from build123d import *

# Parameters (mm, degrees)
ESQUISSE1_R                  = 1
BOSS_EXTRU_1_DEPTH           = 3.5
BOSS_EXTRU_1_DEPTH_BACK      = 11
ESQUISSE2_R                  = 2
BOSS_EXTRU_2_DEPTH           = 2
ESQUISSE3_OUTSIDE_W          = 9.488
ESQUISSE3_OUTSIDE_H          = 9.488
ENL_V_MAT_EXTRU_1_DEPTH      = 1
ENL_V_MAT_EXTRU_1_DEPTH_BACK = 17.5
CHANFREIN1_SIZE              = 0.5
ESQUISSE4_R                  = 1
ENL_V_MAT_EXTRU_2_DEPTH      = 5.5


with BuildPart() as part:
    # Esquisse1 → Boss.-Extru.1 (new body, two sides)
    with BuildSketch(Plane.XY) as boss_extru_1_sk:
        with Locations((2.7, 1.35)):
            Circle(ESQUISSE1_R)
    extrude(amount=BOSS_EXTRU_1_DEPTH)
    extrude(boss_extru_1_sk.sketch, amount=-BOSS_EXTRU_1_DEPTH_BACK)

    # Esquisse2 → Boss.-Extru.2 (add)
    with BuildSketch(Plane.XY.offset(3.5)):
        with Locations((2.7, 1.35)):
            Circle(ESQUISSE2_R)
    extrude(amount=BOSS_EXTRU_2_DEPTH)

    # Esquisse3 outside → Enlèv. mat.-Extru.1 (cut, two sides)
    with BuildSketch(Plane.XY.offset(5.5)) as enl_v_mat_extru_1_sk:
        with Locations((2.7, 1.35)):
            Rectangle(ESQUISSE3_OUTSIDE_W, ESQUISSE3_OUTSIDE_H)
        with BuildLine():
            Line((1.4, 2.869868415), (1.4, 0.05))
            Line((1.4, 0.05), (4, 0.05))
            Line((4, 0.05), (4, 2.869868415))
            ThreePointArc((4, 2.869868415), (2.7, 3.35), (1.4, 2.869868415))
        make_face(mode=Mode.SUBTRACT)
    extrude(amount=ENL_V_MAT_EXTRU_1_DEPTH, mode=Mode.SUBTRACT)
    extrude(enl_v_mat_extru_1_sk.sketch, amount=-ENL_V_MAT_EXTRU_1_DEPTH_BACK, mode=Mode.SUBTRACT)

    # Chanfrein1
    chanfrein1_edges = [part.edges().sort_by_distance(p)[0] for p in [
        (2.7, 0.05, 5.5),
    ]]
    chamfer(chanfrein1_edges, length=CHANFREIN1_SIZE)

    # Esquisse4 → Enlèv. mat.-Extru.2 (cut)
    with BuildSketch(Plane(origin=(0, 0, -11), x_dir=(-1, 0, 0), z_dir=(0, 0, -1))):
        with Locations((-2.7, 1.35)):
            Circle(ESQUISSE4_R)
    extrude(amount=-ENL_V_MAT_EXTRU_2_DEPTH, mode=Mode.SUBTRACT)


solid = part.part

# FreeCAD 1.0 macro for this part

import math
import FreeCAD as App
import Part
import Sketcher
from FreeCAD import Vector


def edges_at(feature, points):
    """Names of the edges that pass closest to the given points."""
    edges = feature.Shape.Edges
    near = lambda p: min(range(len(edges)), key=lambda i: edges[i].distToShape(Part.Vertex(*p))[0])
    return sorted({f"Edge{near(p) + 1}" for p in points})


def add_polygon(sketch, points):
    """Adds a closed chain of lines whose ends are joined by coincident constraints."""
    first, n = sketch.GeometryCount, len(points)
    for a, b in zip(points, points[1:] + points[:1]):
        sketch.addGeometry(Part.LineSegment(App.Vector(*a, 0), App.Vector(*b, 0)), False)
    for i in range(n):
        sketch.addConstraint(Sketcher.Constraint("Coincident", first + i, 2, first + (i + 1) % n, 1))

doc = App.newDocument("Part")
params = doc.addObject("Spreadsheet::Sheet", "Params")
for row, (alias, value) in enumerate([
    ("sketch1_diameter", "2 mm"),
    ("pad1_length", "3.5 mm"),
    ("pad1_length2", "11 mm"),
    ("sketch2_diameter", "4 mm"),
    ("pad2_length", "2 mm"),
    ("sketch3_radius", "2 mm"),
    ("sketch3_width", "2.6 mm"),
    ("chamfer_size", "0.5 mm"),
    ("sketch4_diameter", "2 mm"),
    ("pocket2_length", "5.5 mm"),
], start=1):
    params.set(f"A{row}", alias)
    params.set(f"B{row}", "=" + value)
    params.setAlias(f"B{row}", alias)

body = doc.addObject("PartDesign::Body", "Body")

# Sketch on XY plane
sketch1 = doc.addObject("Sketcher::SketchObject", "Sketch")
body.addObject(sketch1)
sketch1.AttachmentSupport = (doc.XY_Plane, [""])
sketch1.MapMode = "FlatFace"
sketch1.addGeometry(Part.Circle(Vector(2.7, 1.4, 0), Vector(0, 0, 1), 1), False)
sketch1.addConstraint([
    Sketcher.Constraint("Diameter", 0, 2.0),
    Sketcher.Constraint("DistanceX", -1, 1, 0, 3, 2.7),
    Sketcher.Constraint("DistanceY", -1, 1, 0, 3, 1.35),
])
sketch1.setExpression("Constraints[0]", "Params.sketch1_diameter")
pad1 = doc.addObject("PartDesign::Pad", "Pad")
body.addObject(pad1)
pad1.Profile = sketch1
pad1.Type = "TwoLengths"
pad1.setExpression("Length", "Params.pad1_length")
pad1.setExpression("Length2", "Params.pad1_length2")

# Sketch on XY plane
sketch2 = doc.addObject("Sketcher::SketchObject", "Sketch001")
body.addObject(sketch2)
sketch2.AttachmentSupport = (doc.XY_Plane, [""])
sketch2.MapMode = "FlatFace"
sketch2.AttachmentOffset = App.Placement(Vector(0, 0, 3.5), App.Rotation())
sketch2.addGeometry(Part.Circle(Vector(2.7, 1.4, 0), Vector(0, 0, 1), 2), False)
sketch2.addConstraint([
    Sketcher.Constraint("Diameter", 0, 4.0),
    Sketcher.Constraint("DistanceX", -1, 1, 0, 3, 2.7),
    Sketcher.Constraint("DistanceY", -1, 1, 0, 3, 1.35),
])
sketch2.setExpression("Constraints[0]", "Params.sketch2_diameter")
pad2 = doc.addObject("PartDesign::Pad", "Pad001")
body.addObject(pad2)
pad2.Profile = sketch2
pad2.setExpression("Length", "Params.pad2_length")

# Sketch on XY plane
sketch3 = doc.addObject("Sketcher::SketchObject", "Sketch002")
body.addObject(sketch3)
sketch3.AttachmentSupport = (doc.XY_Plane, [""])
sketch3.MapMode = "FlatFace"
sketch3.AttachmentOffset = App.Placement(Vector(0, 0, 5.5), App.Rotation())
add_polygon(sketch3, [(-2, 6.1), (-2, -3.4), (7.4, -3.4), (7.4, 6.1)])  # lines 0-3
sketch3.addGeometry(Part.LineSegment(Vector(1.4, 0.1, 0), Vector(1.4, 2.9, 0)), False)  # 4
sketch3.addGeometry(Part.ArcOfCircle(Part.Circle(Vector(2.7, 1.4, 0), Vector(0, 0, 1), 2), math.radians(49), math.radians(131)), False)  # 5
sketch3.addGeometry(Part.LineSegment(Vector(4, 2.9, 0), Vector(4, 0.1, 0)), False)  # 6
sketch3.addGeometry(Part.LineSegment(Vector(4, 0.1, 0), Vector(1.4, 0.1, 0)), False)  # 7
sketch3.addConstraint([
    Sketcher.Constraint("Coincident", 4, 2, 5, 2),
    Sketcher.Constraint("Coincident", 5, 1, 6, 1),
    Sketcher.Constraint("Coincident", 6, 2, 7, 1),
    Sketcher.Constraint("Coincident", 7, 2, 4, 1),
    Sketcher.Constraint("Vertical", 0),
    Sketcher.Constraint("Horizontal", 1),
    Sketcher.Constraint("Vertical", 2),
    Sketcher.Constraint("Horizontal", 3),
    Sketcher.Constraint("Vertical", 4),
    Sketcher.Constraint("Vertical", 6),
    Sketcher.Constraint("Horizontal", 7),
    Sketcher.Constraint("Horizontal", 4, 2, 5, 1),
    Sketcher.Constraint("Equal", 3, 0),
    Sketcher.Constraint("Radius", 5, 2.0),
    Sketcher.Constraint("DistanceX", 7, 2, 7, 1, 2.6),
    Sketcher.Constraint("DistanceX", -1, 1, 5, 1, 4.0),
    Sketcher.Constraint("DistanceY", 6, 2, 5, 3, 1.3),
    Sketcher.Constraint("DistanceX", 1, 1, 1, 2, 9.488),
    Sketcher.Constraint("DistanceY", -1, 1, 5, 3, 1.35),
    Sketcher.Constraint("DistanceX", 0, 2, -1, 1, 2.044),
    Sketcher.Constraint("DistanceY", 0, 2, -1, 1, 3.394),
])
sketch3.setExpression("Constraints[17]", "Params.sketch3_radius")
sketch3.setExpression("Constraints[18]", "Params.sketch3_width")
pocket1 = doc.addObject("PartDesign::Pocket", "Pocket")
body.addObject(pocket1)
pocket1.Profile = sketch3
pocket1.Type = "ThroughAll"
pocket1.Midplane = True
doc.recompute()

chamfer = doc.addObject("PartDesign::Chamfer", "Chamfer")
body.addObject(chamfer)
chamfer.Base = (pocket1, edges_at(pocket1, [(2.7, 0.05, 5.5)]))
chamfer.setExpression("Size", "Params.chamfer_size")

# Sketch on XY plane
sketch4 = doc.addObject("Sketcher::SketchObject", "Sketch003")
body.addObject(sketch4)
sketch4.AttachmentSupport = (doc.XY_Plane, [""])
sketch4.MapMode = "FlatFace"
sketch4.AttachmentOffset = App.Placement(Vector(0, 0, -11), App.Rotation())
sketch4.addGeometry(Part.Circle(Vector(2.7, 1.4, 0), Vector(0, 0, 1), 1), False)
sketch4.addConstraint([
    Sketcher.Constraint("Diameter", 0, 2.0),
    Sketcher.Constraint("DistanceX", -1, 1, 0, 3, 2.7),
    Sketcher.Constraint("DistanceY", -1, 1, 0, 3, 1.35),
])
sketch4.setExpression("Constraints[0]", "Params.sketch4_diameter")
pocket2 = doc.addObject("PartDesign::Pocket", "Pocket001")
body.addObject(pocket2)
pocket2.Profile = sketch4
pocket2.setExpression("Length", "Params.pocket2_length")
pocket2.Reversed = True

doc.recompute()
